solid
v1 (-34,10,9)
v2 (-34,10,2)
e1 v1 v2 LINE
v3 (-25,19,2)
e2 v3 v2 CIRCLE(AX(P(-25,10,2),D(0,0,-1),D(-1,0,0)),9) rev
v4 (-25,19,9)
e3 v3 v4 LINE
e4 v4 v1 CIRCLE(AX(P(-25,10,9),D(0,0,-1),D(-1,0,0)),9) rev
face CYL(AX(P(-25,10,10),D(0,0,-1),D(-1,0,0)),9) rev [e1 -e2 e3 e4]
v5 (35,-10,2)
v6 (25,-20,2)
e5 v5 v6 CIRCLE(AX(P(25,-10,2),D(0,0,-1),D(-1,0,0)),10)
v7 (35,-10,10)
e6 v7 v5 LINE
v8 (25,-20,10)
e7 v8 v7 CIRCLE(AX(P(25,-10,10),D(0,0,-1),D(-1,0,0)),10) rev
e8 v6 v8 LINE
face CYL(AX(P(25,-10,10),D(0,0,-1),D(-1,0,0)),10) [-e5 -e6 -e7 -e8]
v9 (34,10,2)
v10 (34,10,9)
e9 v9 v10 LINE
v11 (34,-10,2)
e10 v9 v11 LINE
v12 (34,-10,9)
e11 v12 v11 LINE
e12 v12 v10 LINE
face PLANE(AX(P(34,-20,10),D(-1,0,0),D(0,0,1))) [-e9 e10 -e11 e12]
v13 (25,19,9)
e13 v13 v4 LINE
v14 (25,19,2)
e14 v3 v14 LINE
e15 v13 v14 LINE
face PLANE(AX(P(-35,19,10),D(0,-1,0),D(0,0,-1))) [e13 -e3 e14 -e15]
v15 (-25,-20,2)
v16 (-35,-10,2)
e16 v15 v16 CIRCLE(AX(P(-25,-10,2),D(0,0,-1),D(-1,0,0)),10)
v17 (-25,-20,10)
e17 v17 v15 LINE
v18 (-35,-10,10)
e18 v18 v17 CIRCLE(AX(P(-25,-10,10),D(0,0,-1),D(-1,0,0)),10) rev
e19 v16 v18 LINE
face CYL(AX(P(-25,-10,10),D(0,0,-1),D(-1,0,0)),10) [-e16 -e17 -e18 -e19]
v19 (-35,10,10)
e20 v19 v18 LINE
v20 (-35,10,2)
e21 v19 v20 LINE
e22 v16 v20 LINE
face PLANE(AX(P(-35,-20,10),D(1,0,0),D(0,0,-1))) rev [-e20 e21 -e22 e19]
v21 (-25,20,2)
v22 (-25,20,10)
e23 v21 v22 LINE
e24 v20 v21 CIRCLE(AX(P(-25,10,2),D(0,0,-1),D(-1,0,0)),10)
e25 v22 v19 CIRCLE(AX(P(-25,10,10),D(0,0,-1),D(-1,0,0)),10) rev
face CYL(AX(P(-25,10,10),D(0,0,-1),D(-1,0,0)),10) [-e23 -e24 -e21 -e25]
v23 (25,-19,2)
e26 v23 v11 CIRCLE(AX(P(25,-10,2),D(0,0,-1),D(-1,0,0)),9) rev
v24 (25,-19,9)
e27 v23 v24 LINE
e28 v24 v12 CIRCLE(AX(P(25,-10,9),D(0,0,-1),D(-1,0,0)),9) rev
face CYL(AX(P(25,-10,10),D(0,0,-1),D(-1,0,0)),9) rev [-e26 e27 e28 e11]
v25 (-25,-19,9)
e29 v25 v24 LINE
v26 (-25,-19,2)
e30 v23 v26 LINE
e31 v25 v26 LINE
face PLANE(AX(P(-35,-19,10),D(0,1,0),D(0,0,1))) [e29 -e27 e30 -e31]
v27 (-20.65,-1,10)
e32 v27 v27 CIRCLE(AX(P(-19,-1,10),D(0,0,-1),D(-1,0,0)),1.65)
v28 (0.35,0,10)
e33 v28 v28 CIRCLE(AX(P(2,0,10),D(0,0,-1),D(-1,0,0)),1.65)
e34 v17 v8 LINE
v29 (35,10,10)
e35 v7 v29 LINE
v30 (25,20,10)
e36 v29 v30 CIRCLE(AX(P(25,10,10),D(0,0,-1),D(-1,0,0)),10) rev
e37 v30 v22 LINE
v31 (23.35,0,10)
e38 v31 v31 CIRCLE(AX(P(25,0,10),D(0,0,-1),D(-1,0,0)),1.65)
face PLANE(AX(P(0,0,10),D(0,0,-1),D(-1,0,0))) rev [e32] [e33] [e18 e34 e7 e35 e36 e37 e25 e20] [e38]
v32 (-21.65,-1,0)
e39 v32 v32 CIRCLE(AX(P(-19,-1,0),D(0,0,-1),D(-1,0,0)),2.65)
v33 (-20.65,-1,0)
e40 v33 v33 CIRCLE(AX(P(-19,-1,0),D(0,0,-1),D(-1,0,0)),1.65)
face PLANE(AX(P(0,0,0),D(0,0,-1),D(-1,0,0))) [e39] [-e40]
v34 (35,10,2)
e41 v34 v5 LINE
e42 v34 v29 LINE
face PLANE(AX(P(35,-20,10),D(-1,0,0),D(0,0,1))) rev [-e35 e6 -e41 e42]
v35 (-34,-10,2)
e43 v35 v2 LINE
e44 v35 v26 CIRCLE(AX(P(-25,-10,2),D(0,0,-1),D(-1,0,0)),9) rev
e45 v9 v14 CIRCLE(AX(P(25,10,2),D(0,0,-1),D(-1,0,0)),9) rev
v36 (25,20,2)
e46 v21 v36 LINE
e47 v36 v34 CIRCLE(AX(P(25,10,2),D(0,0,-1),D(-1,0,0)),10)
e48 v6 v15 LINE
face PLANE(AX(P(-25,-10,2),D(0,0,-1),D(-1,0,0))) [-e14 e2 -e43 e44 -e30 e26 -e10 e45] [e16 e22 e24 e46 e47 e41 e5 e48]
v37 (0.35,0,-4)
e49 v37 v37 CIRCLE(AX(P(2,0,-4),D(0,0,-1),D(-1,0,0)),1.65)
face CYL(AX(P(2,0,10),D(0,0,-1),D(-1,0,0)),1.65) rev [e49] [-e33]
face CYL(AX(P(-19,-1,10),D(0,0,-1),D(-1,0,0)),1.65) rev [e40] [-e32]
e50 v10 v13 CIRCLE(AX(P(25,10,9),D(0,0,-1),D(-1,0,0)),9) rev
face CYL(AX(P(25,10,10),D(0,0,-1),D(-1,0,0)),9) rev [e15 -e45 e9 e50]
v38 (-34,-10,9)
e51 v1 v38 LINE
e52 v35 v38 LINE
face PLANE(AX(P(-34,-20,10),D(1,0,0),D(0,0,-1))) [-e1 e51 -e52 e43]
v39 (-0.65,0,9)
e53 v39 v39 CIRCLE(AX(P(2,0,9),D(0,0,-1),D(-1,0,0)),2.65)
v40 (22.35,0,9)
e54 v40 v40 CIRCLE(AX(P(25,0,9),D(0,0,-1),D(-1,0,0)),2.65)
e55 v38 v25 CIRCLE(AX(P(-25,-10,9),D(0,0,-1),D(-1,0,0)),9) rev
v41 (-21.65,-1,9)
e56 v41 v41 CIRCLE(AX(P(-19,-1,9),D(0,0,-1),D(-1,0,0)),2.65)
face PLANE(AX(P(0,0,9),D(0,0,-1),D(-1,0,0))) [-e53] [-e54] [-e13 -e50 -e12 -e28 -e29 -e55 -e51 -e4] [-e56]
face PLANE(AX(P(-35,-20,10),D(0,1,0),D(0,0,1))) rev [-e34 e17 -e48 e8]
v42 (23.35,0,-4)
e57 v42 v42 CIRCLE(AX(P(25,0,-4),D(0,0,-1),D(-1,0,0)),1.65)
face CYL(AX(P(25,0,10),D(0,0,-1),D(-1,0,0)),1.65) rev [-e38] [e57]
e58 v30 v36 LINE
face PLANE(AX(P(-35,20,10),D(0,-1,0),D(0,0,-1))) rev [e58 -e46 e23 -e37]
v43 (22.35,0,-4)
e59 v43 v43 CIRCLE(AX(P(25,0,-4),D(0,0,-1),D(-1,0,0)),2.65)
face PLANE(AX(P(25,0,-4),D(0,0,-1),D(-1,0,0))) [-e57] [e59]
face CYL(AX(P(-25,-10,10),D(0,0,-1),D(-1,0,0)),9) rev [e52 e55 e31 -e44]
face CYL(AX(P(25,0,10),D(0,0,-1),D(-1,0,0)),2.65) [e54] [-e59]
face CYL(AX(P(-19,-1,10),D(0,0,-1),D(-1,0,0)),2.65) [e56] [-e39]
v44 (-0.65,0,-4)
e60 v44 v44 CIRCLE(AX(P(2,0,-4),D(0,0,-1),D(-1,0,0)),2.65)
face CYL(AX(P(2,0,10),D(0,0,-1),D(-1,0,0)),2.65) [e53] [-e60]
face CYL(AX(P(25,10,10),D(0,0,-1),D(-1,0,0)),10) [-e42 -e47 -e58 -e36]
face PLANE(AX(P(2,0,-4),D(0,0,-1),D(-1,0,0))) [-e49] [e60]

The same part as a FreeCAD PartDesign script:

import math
import FreeCAD as App
import Part
import Sketcher
Q = App.Units.Quantity


def edges_at(feature, points):
    """Names of the edges that pass closest to the given points."""
    edges = feature.Shape.Edges
    near = lambda p: min(range(len(edges)), key=lambda i: edges[i].distToShape(Part.Vertex(*p))[0])
    return sorted({f"Edge{near(p) + 1}" for p in points})


def faces_at(feature, points):
    """Names of the faces that lie closest to the given points."""
    faces = feature.Shape.Faces
    near = lambda p: min(range(len(faces)), key=lambda i: faces[i].distToShape(Part.Vertex(*p))[0])
    return sorted({f"Face{near(p) + 1}" for p in points})


def add_polygon(sketch, points):
    """Adds a closed chain of lines whose ends are joined by coincident constraints."""
    first, n = sketch.GeometryCount, len(points)
    for a, b in zip(points, points[1:] + points[:1]):
        sketch.addGeometry(Part.LineSegment(App.Vector(*a, 0), App.Vector(*b, 0)), False)
    for i in range(n):
        sketch.addConstraint(Sketcher.Constraint("Coincident", first + i, 2, first + (i + 1) % n, 1))

doc = App.newDocument("Part")
body = doc.addObject("PartDesign::Body", "Body")

sketch1 = doc.addObject("Sketcher::SketchObject", "Sketch")
body.addObject(sketch1)
sketch1.AttachmentSupport = (doc.XY_Plane, [""])
sketch1.MapMode = "FlatFace"
add_polygon(sketch1, [(-35, 20), (-35, -20), (35, -20), (35, 20)])
sketch1.addConstraint([
    Sketcher.Constraint("Vertical", 0),
    Sketcher.Constraint("Horizontal", 1),
    Sketcher.Constraint("Vertical", 2),
    Sketcher.Constraint("Horizontal", 3),
    Sketcher.Constraint("Symmetric", 0, 2, 2, 2, -1, 1),
    Sketcher.Constraint("DistanceX", 1, 1, 1, 2, Q("70 mm")),
    Sketcher.Constraint("DistanceY", 0, 2, 0, 1, Q("40 mm")),
])
pad1 = doc.addObject("PartDesign::Pad", "Pad")
body.addObject(pad1)
pad1.Profile = sketch1
pad1.Length = 10

sketch2 = doc.addObject("Sketcher::SketchObject", "Sketch001")
body.addObject(sketch2)
sketch2.AttachmentSupport = (doc.XY_Plane, [""])
sketch2.MapMode = "FlatFace"
sketch2.addGeometry([
    Part.Circle(App.Vector(25, 0, 0), App.Vector(0, 0, 1), 1.6),
    Part.Circle(App.Vector(2, 0, 0), App.Vector(0, 0, 1), 1.6),
    Part.Circle(App.Vector(-19, -1, 0), App.Vector(0, 0, 1), 1.6),
], False)
sketch2.addConstraint([
    Sketcher.Constraint("Equal", 0, 1),
    Sketcher.Constraint("Equal", 1, 2),
    Sketcher.Constraint("PointOnObject", 0, 3, -1),
    Sketcher.Constraint("PointOnObject", 1, 3, -1),
    Sketcher.Constraint("Diameter", 0, Q("3.3 mm")),
    Sketcher.Constraint("DistanceX", -1, 1, 0, 3, Q("25 mm")),
    Sketcher.Constraint("DistanceX", -1, 1, 1, 3, Q("2 mm")),
    Sketcher.Constraint("DistanceX", 2, 3, -1, 1, Q("19 mm")),
    Sketcher.Constraint("DistanceY", 2, 3, -1, 1, Q("1 mm")),
])
pocket1 = doc.addObject("PartDesign::Pocket", "Pocket")
body.addObject(pocket1)
pocket1.Profile = sketch2
pocket1.Type = "ThroughAll"
pocket1.Reversed = True
doc.recompute()

fillet = doc.addObject("PartDesign::Fillet", "Fillet")
body.addObject(fillet)
fillet.Base = (pocket1, edges_at(pocket1, [
    (35, -20, 5),
    (-35, -20, 5),
    (-35, 20, 5),
    (35, 20, 5),
]))
fillet.Radius = 10
doc.recompute()

thickness = doc.addObject("PartDesign::Thickness", "Thickness")
body.addObject(thickness)
thickness.Base = (fillet, faces_at(fillet, [(0, 0, 0)]))
thickness.Value = 1
thickness.Reversed = True
thickness.Join = "Intersection"

sketch3 = doc.addObject("Sketcher::SketchObject", "Sketch002")
body.addObject(sketch3)
sketch3.AttachmentSupport = (doc.XY_Plane, [""])
sketch3.MapMode = "FlatFace"
sketch3.addGeometry([
    Part.Circle(App.Vector(2, 0, 0), App.Vector(0, 0, 1), 2.6),
    Part.Circle(App.Vector(2, 0, 0), App.Vector(0, 0, 1), 1.6),
    Part.Circle(App.Vector(25, 0, 0), App.Vector(0, 0, 1), 2.6),
    Part.Circle(App.Vector(25, 0, 0), App.Vector(0, 0, 1), 1.6),
], False)
sketch3.addConstraint([
    Sketcher.Constraint("Coincident", 1, 3, 0, 3),
    Sketcher.Constraint("Coincident", 3, 3, 2, 3),
    Sketcher.Constraint("Equal", 0, 2),
    Sketcher.Constraint("Equal", 1, 3),
    Sketcher.Constraint("PointOnObject", 0, 3, -1),
    Sketcher.Constraint("PointOnObject", 2, 3, -1),
    Sketcher.Constraint("Diameter", 0, Q("5.3 mm")),
    Sketcher.Constraint("Diameter", 1, Q("3.3 mm")),
    Sketcher.Constraint("DistanceX", -1, 1, 0, 3, Q("2 mm")),
    Sketcher.Constraint("DistanceX", -1, 1, 2, 3, Q("25 mm")),
])
pad2 = doc.addObject("PartDesign::Pad", "Pad001")
body.addObject(pad2)
pad2.Profile = sketch3
pad2.Length = 4
pad2.Reversed = True

sketch4 = doc.addObject("Sketcher::SketchObject", "Sketch003")
body.addObject(sketch4)
sketch4.AttachmentSupport = (doc.XY_Plane, [""])
sketch4.MapMode = "FlatFace"
sketch4.addGeometry([
    Part.LineSegment(App.Vector(-35, -10, 0), App.Vector(-35, 10, 0)),
    Part.ArcOfCircle(Part.Circle(App.Vector(-25, 10, 0), App.Vector(0, 0, 1), 10), math.radians(90), math.radians(180)),
    Part.LineSegment(App.Vector(-25, 20, 0), App.Vector(25, 20, 0)),
    Part.ArcOfCircle(Part.Circle(App.Vector(25, 10, 0), App.Vector(0, 0, 1), 10), math.radians(0), math.radians(90)),
    Part.LineSegment(App.Vector(35, 10, 0), App.Vector(35, -10, 0)),
    Part.ArcOfCircle(Part.Circle(App.Vector(25, -10, 0), App.Vector(0, 0, 1), 10), math.radians(-90), math.radians(0)),
    Part.LineSegment(App.Vector(25, -20, 0), App.Vector(-25, -20, 0)),
    Part.ArcOfCircle(Part.Circle(App.Vector(-25, -10, 0), App.Vector(0, 0, 1), 10), math.radians(180), math.radians(270)),
    Part.LineSegment(App.Vector(-33, 10, 0), App.Vector(-33, -10, 0)),
    Part.ArcOfCircle(Part.Circle(App.Vector(-25, -10, 0), App.Vector(0, 0, 1), 8), math.radians(-180), math.radians(-90)),
    Part.LineSegment(App.Vector(-25, -18, 0), App.Vector(25, -18, 0)),
    Part.ArcOfCircle(Part.Circle(App.Vector(25, -10, 0), App.Vector(0, 0, 1), 8), math.radians(-90), math.radians(0)),
    Part.LineSegment(App.Vector(33, -10, 0), App.Vector(33, 10, 0)),
    Part.ArcOfCircle(Part.Circle(App.Vector(25, 10, 0), App.Vector(0, 0, 1), 8), math.radians(0), math.radians(90)),
    Part.LineSegment(App.Vector(25, 18, 0), App.Vector(-25, 18, 0)),
    Part.ArcOfCircle(Part.Circle(App.Vector(-25, 10, 0), App.Vector(0, 0, 1), 8), math.radians(90), math.radians(180)),
], False)
sketch4.addConstraint([
    Sketcher.Constraint("Tangent", 0, 2, 1, 2),
    Sketcher.Constraint("Tangent", 1, 1, 2, 1),
    Sketcher.Constraint("Tangent", 2, 2, 3, 2),
    Sketcher.Constraint("Tangent", 3, 1, 4, 1),
    Sketcher.Constraint("Tangent", 4, 2, 5, 2),
    Sketcher.Constraint("Tangent", 5, 1, 6, 1),
    Sketcher.Constraint("Tangent", 6, 2, 7, 2),
    Sketcher.Constraint("Tangent", 7, 1, 0, 1),
    Sketcher.Constraint("Tangent", 8, 2, 9, 1),
    Sketcher.Constraint("Tangent", 9, 2, 10, 1),
    Sketcher.Constraint("Tangent", 10, 2, 11, 1),
    Sketcher.Constraint("Tangent", 11, 2, 12, 1),
    Sketcher.Constraint("Tangent", 12, 2, 13, 1),
    Sketcher.Constraint("Tangent", 13, 2, 14, 1),
    Sketcher.Constraint("Tangent", 14, 2, 15, 1),
    Sketcher.Constraint("Tangent", 15, 2, 8, 1),
    Sketcher.Constraint("Vertical", 0),
    Sketcher.Constraint("Horizontal", 2),
    Sketcher.Constraint("Vertical", 4),
    Sketcher.Constraint("Horizontal", 6),
    Sketcher.Constraint("Vertical", 8),
    Sketcher.Constraint("Horizontal", 10),
    Sketcher.Constraint("Vertical", 12),
    Sketcher.Constraint("Horizontal", 14),
    Sketcher.Constraint("Coincident", 9, 3, 7, 3),
    Sketcher.Constraint("Coincident", 11, 3, 5, 3),
    Sketcher.Constraint("Coincident", 13, 3, 3, 3),
    Sketcher.Constraint("Equal", 1, 3),
    Sketcher.Constraint("Equal", 3, 5),
    Sketcher.Constraint("Equal", 5, 7),
    Sketcher.Constraint("Equal", 13, 15),
    Sketcher.Constraint("Symmetric", 1, 3, 5, 3, -1, 1),
    Sketcher.Constraint("Radius", 1, Q("10 mm")),
    Sketcher.Constraint("Radius", 9, Q("8 mm")),
    Sketcher.Constraint("DistanceX", 2, 1, 2, 2, Q("50 mm")),
    Sketcher.Constraint("DistanceY", 0, 1, 0, 2, Q("20 mm")),
])
pocket2 = doc.addObject("PartDesign::Pocket", "Pocket001")
body.addObject(pocket2)
pocket2.Profile = sketch4
pocket2.Length = 2
pocket2.Reversed = True

doc.recompute()
